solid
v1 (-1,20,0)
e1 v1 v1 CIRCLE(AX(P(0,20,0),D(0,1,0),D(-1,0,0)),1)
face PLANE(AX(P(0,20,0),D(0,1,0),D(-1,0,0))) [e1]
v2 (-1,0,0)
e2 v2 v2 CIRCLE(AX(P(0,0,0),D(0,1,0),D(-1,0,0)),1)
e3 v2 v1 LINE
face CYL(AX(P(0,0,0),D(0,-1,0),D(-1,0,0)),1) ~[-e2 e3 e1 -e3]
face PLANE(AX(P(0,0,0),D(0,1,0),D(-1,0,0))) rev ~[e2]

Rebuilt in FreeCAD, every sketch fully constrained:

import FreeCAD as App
import Part
import Sketcher
from FreeCAD import Vector
Q = App.Units.Quantity

doc = App.newDocument("Part")
body = doc.addObject("PartDesign::Body", "Body")

# Sketch on XZ plane
sketch1 = body.newObject("Sketcher::SketchObject", "Sketch")
sketch1.AttachmentSupport = (doc.getObject("XZ_Plane"), [""])
sketch1.MapMode = "FlatFace"
sketch1.addGeometry(Part.Circle(Vector(0, 0, 0), Vector(0, 0, 1), 1), False)
sketch1.addConstraint([
    Sketcher.Constraint("Coincident", 0, 3, -1, 1),
    Sketcher.Constraint("Diameter", 0, Q("2 mm")),
])
pad1 = body.newObject("PartDesign::Pad", "Pad")
pad1.Profile = sketch1
pad1.Length = 20
pad1.Reversed = True

doc.recompute()
